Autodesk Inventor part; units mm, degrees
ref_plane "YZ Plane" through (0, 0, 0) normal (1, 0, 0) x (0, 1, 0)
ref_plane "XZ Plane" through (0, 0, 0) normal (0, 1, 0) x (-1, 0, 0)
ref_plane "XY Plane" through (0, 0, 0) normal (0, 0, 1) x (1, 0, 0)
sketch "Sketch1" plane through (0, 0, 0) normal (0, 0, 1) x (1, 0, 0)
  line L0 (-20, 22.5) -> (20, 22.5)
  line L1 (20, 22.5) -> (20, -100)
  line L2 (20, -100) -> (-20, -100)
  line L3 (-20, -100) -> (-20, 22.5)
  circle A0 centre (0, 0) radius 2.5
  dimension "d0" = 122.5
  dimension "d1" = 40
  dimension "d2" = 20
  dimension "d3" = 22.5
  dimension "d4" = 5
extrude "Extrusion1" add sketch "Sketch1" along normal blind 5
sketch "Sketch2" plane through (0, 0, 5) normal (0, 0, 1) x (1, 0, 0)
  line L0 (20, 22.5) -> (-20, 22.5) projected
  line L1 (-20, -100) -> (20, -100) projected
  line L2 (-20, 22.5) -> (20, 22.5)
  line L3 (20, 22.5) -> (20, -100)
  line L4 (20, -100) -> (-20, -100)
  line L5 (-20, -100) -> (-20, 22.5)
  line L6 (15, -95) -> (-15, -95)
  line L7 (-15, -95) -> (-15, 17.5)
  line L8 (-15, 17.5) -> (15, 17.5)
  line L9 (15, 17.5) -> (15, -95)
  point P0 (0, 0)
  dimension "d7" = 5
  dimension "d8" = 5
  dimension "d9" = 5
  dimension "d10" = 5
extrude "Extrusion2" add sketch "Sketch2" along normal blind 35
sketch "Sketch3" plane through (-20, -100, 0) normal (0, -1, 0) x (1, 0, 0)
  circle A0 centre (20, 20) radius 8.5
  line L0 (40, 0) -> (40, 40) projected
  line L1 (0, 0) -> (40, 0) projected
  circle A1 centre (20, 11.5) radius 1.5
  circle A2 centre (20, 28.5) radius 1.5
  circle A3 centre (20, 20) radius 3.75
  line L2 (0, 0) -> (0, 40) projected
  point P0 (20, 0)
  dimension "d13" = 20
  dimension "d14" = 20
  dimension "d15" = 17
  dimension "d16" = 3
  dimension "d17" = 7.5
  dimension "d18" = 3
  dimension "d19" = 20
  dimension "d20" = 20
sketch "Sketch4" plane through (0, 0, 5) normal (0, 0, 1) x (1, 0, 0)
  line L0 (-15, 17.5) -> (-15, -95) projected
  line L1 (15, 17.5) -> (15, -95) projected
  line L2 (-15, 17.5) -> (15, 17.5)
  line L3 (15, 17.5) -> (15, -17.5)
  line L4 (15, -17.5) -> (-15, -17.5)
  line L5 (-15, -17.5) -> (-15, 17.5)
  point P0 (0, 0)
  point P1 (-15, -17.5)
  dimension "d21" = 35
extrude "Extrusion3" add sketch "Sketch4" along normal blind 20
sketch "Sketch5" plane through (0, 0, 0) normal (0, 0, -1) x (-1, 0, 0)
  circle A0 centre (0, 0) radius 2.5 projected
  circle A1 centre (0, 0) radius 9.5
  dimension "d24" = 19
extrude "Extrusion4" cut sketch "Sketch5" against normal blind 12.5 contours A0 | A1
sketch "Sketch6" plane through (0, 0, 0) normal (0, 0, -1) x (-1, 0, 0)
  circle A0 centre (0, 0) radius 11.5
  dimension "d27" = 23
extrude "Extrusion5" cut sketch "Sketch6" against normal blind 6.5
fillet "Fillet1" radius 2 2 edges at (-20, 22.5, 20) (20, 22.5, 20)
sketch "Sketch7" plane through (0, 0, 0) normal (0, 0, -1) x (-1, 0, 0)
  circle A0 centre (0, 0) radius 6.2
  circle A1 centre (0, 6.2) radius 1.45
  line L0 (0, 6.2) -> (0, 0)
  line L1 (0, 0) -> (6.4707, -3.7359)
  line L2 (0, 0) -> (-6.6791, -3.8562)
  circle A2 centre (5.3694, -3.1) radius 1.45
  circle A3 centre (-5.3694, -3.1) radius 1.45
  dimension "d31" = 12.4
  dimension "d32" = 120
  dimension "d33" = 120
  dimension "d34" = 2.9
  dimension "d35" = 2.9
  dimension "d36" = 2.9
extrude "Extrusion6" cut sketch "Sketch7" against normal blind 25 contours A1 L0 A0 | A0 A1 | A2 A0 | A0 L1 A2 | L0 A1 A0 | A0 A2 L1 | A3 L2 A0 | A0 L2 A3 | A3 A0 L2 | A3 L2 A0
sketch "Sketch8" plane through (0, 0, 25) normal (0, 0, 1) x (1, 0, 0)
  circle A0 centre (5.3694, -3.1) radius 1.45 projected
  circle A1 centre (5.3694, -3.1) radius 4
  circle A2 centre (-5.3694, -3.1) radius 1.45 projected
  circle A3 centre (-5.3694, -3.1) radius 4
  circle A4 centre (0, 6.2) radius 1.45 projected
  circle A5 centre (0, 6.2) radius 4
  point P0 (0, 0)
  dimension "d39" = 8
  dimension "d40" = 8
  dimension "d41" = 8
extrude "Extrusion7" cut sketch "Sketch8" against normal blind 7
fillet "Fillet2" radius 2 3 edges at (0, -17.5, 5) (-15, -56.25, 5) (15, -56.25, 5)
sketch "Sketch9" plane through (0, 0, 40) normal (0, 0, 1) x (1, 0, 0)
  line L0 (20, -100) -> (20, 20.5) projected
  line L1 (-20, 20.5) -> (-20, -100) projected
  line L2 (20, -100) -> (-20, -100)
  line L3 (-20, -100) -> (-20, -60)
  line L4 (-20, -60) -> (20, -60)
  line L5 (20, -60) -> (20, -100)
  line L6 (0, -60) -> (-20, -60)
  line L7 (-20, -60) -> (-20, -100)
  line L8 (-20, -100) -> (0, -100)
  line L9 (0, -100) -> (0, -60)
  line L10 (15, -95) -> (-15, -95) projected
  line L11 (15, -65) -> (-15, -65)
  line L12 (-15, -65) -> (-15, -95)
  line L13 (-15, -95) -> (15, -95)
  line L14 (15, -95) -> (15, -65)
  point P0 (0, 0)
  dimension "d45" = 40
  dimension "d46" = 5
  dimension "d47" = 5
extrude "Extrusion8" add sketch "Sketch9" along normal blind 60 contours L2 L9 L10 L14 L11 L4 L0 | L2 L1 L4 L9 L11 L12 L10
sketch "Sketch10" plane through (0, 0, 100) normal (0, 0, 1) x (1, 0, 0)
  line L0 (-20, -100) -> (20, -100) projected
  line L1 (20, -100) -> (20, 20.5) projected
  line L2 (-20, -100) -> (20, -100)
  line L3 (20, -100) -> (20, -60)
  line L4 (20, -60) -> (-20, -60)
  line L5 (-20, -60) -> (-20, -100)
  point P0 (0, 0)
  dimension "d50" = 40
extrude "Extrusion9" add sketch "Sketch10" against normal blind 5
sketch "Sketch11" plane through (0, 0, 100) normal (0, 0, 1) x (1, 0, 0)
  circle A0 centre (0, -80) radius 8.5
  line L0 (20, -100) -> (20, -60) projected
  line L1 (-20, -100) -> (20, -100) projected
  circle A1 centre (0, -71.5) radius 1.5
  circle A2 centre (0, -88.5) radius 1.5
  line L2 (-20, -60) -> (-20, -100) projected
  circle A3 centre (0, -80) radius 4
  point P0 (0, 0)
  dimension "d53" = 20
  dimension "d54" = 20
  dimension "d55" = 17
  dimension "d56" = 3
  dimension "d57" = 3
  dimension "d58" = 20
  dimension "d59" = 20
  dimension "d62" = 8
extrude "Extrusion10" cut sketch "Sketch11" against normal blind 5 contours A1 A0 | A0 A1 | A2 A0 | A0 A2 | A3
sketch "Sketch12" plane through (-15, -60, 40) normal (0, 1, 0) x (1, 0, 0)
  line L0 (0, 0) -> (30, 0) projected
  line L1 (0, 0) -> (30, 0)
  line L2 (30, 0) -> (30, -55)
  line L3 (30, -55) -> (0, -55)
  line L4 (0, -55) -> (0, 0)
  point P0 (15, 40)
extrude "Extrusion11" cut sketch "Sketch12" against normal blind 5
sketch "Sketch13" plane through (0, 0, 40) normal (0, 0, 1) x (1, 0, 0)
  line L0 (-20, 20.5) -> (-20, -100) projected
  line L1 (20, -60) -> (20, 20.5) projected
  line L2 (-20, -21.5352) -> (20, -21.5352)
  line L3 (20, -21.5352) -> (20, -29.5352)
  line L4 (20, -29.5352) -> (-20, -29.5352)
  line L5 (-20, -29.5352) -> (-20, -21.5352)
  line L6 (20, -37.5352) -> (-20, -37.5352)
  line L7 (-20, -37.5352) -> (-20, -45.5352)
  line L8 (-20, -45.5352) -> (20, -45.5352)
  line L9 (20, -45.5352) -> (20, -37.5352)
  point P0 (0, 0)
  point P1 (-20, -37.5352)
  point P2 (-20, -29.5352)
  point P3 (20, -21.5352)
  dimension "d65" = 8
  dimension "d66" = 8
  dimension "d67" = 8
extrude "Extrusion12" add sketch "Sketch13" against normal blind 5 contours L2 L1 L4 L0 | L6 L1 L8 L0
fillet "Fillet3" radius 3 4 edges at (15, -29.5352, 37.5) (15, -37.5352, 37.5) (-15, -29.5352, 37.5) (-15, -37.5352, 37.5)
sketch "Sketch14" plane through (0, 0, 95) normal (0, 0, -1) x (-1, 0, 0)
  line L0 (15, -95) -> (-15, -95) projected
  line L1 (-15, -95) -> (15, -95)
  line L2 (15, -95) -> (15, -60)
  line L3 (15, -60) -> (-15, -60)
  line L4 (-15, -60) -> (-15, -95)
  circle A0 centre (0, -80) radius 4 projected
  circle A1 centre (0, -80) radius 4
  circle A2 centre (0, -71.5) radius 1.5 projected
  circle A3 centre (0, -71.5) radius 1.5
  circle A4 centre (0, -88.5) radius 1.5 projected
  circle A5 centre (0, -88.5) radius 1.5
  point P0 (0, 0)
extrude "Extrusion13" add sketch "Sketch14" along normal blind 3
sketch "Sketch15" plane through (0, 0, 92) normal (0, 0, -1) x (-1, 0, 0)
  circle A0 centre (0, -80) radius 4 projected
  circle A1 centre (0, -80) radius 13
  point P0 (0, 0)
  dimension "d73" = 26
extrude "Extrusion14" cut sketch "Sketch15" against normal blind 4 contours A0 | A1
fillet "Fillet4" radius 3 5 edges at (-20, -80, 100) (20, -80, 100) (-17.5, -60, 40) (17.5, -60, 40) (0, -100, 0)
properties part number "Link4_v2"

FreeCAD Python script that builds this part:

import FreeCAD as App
import Part
import Sketcher

V = App.Vector


def edges_at(feature, points):
    """Names of the edges that pass closest to the given points."""
    edges = feature.Shape.Edges
    near = lambda p: min(range(len(edges)), key=lambda i: edges[i].distToShape(Part.Vertex(*p))[0])
    return sorted({f"Edge{near(p) + 1}" for p in points})

doc = App.newDocument("Part")
params = doc.addObject("Spreadsheet::Sheet", "Params")
for row, (alias, value) in enumerate([
    ("sketch1_diameter", "5 mm"),
    ("sketch1_width", "40 mm"),
    ("sketch1_height", "122.5 mm"),
    ("pad1_length", "5 mm"),
    ("sketch2_width", "40 mm"),
    ("sketch2_height", "122.5 mm"),
    ("pad2_length", "35 mm"),
    ("sketch3_height", "35 mm"),
    ("sketch3_width", "30 mm"),
    ("pad3_length", "20 mm"),
    ("sketch4_diameter", "19 mm"),
    ("pocket1_length", "12.5 mm"),
    ("sketch5_diameter", "23 mm"),
    ("pocket2_length", "6.5 mm"),
    ("fillet_radius", "2 mm"),
    ("sketch6_diameter", "2.9 mm"),
    ("pocket3_length", "25 mm"),
    ("sketch7_diameter", "8 mm"),
    ("sketch7_diameter2", "2.9 mm"),
    ("pocket4_length", "7 mm"),
    ("fillet2_radius", "2 mm"),
    ("sketch8_width", "40 mm"),
    ("pad4_length", "60 mm"),
    ("sketch9_width", "40 mm"),
    ("pad5_length", "5 mm"),
    ("sketch10_diameter", "3 mm"),
    ("sketch10_diameter2", "8 mm"),
    ("pocket5_length", "5 mm"),
    ("sketch11_width", "30 mm"),
    ("sketch11_height", "55 mm"),
    ("pocket6_length", "5 mm"),
    ("sketch12_height", "8 mm"),
    ("sketch12_width", "40 mm"),
    ("pad6_length", "5 mm"),
    ("fillet3_radius", "3 mm"),
    ("sketch13_diameter", "3 mm"),
    ("sketch13_diameter2", "8 mm"),
    ("sketch13_width", "30 mm"),
    ("sketch13_height", "35 mm"),
    ("pad7_length", "3 mm"),
    ("sketch14_diameter", "26 mm"),
    ("pocket7_length", "4 mm"),
    ("fillet4_radius", "3 mm"),
], start=1):
    params.set(f"A{row}", alias)
    params.set(f"B{row}", "=" + value)
    params.setAlias(f"B{row}", alias)

body = doc.addObject("PartDesign::Body", "Body")

sketch1 = doc.addObject("Sketcher::SketchObject", "Sketch")
body.addObject(sketch1)
sketch1.AttachmentSupport = (doc.XY_Plane, [""])
sketch1.MapMode = "FlatFace"
sketch1.addGeometry([
    Part.LineSegment(V(20, 22.5, 0), V(-20, 22.5, 0)),
    Part.LineSegment(V(-20, 22.5, 0), V(-20, -100, 0)),
    Part.LineSegment(V(-20, -100, 0), V(20, -100, 0)),
    Part.LineSegment(V(20, -100, 0), V(20, 22.5, 0)),
    Part.Circle(V(0, 0, 0), V(0, 0, 1), 2.5),
], False)
sketch1.addConstraint([
    Sketcher.Constraint("Coincident", 0, 2, 1, 1),
    Sketcher.Constraint("Coincident", 1, 2, 2, 1),
    Sketcher.Constraint("Coincident", 2, 2, 3, 1),
    Sketcher.Constraint("Coincident", 3, 2, 0, 1),
    Sketcher.Constraint("Horizontal", 0),
    Sketcher.Constraint("Vertical", 1),
    Sketcher.Constraint("Horizontal", 2),
    Sketcher.Constraint("Vertical", 3),
    Sketcher.Constraint("Coincident", 4, 3, -1, 1),
    Sketcher.Constraint("Diameter", 4, 5.0),
    Sketcher.Constraint("DistanceX", 0, 2, 0, 1, 40.0),
    Sketcher.Constraint("DistanceY", 1, 2, 1, 1, 122.5),
    Sketcher.Constraint("DistanceX", 0, 2, -1, 1, 20.0),
    Sketcher.Constraint("DistanceY", -1, 1, 0, 2, 22.5),
])
sketch1.setExpression("Constraints[9]", "Params.sketch1_diameter")
sketch1.setExpression("Constraints[10]", "Params.sketch1_width")
sketch1.setExpression("Constraints[11]", "Params.sketch1_height")
pad1 = doc.addObject("PartDesign::Pad", "Pad")
body.addObject(pad1)
pad1.Profile = sketch1
pad1.setExpression("Length", "Params.pad1_length")

sketch2 = doc.addObject("Sketcher::SketchObject", "Sketch001")
body.addObject(sketch2)
sketch2.AttachmentSupport = (doc.XY_Plane, [""])
sketch2.MapMode = "FlatFace"
sketch2.AttachmentOffset = App.Placement(V(0, 0, 5), App.Rotation())
sketch2.addGeometry([
    Part.LineSegment(V(20, -100, 0), V(20, 22, 0)),
    Part.LineSegment(V(20, 22, 0), V(-20, 22, 0)),
    Part.LineSegment(V(-20, 22, 0), V(-20, -100, 0)),
    Part.LineSegment(V(-20, -100, 0), V(20, -100, 0)),
    Part.LineSegment(V(15, 18, 0), V(15, -95, 0)),
    Part.LineSegment(V(15, -95, 0), V(-15, -95, 0)),
    Part.LineSegment(V(-15, -95, 0), V(-15, 18, 0)),
    Part.LineSegment(V(-15, 18, 0), V(15, 18, 0)),
], False)
sketch2.addConstraint([
    Sketcher.Constraint("Coincident", 0, 2, 1, 1),
    Sketcher.Constraint("Coincident", 1, 2, 2, 1),
    Sketcher.Constraint("Coincident", 2, 2, 3, 1),
    Sketcher.Constraint("Coincident", 3, 2, 0, 1),
    Sketcher.Constraint("Coincident", 4, 2, 5, 1),
    Sketcher.Constraint("Coincident", 5, 2, 6, 1),
    Sketcher.Constraint("Coincident", 6, 2, 7, 1),
    Sketcher.Constraint("Coincident", 7, 2, 4, 1),
    Sketcher.Constraint("Vertical", 0),
    Sketcher.Constraint("Horizontal", 1),
    Sketcher.Constraint("Vertical", 2),
    Sketcher.Constraint("Horizontal", 3),
    Sketcher.Constraint("Vertical", 4),
    Sketcher.Constraint("Horizontal", 5),
    Sketcher.Constraint("Vertical", 6),
    Sketcher.Constraint("Horizontal", 7),
    Sketcher.Constraint("DistanceX", 4, 2, 3, 2, 5.0),
    Sketcher.Constraint("DistanceY", 3, 2, 4, 2, 5.0),
    Sketcher.Constraint("DistanceX", 2, 2, 5, 2, 5.0),
    Sketcher.Constraint("DistanceY", 6, 2, 1, 2, 5.0),
    Sketcher.Constraint("DistanceX", 1, 2, 1, 1, 40.0),
    Sketcher.Constraint("DistanceY", 0, 1, 0, 2, 122.5),
    Sketcher.Constraint("DistanceX", -1, 1, 0, 2, 20.0),
    Sketcher.Constraint("DistanceY", 2, 2, -1, 1, 100.0),
])
sketch2.setExpression("Constraints[20]", "Params.sketch2_width")
sketch2.setExpression("Constraints[21]", "Params.sketch2_height")
pad2 = doc.addObject("PartDesign::Pad", "Pad001")
body.addObject(pad2)
pad2.Profile = sketch2
pad2.setExpression("Length", "Params.pad2_length")

sketch3 = doc.addObject("Sketcher::SketchObject", "Sketch002")
body.addObject(sketch3)
sketch3.AttachmentSupport = (doc.XY_Plane, [""])
sketch3.MapMode = "FlatFace"
sketch3.AttachmentOffset = App.Placement(V(0, 0, 5), App.Rotation())
sketch3.addGeometry([
    Part.LineSegment(V(15, 18, 0), V(-15, 18, 0)),
    Part.LineSegment(V(-15, 18, 0), V(-15, -18, 0)),
    Part.LineSegment(V(-15, -18, 0), V(15, -18, 0)),
    Part.LineSegment(V(15, -18, 0), V(15, 18, 0)),
], False)
sketch3.addConstraint([
    Sketcher.Constraint("Coincident", 0, 2, 1, 1),
    Sketcher.Constraint("Coincident", 1, 2, 2, 1),
    Sketcher.Constraint("Coincident", 2, 2, 3, 1),
    Sketcher.Constraint("Coincident", 3, 2, 0, 1),
    Sketcher.Constraint("Horizontal", 0),
    Sketcher.Constraint("Vertical", 1),
    Sketcher.Constraint("Horizontal", 2),
    Sketcher.Constraint("Vertical", 3),
    Sketcher.Constraint("Symmetric", 0, 2, 2, 2, -1, 1),
    Sketcher.Constraint("DistanceY", 1, 2, 1, 1, 35.0),
    Sketcher.Constraint("DistanceX", 0, 2, 0, 1, 30.0),
])
sketch3.setExpression("Constraints[9]", "Params.sketch3_height")
sketch3.setExpression("Constraints[10]", "Params.sketch3_width")
pad3 = doc.addObject("PartDesign::Pad", "Pad002")
body.addObject(pad3)
pad3.Profile = sketch3
pad3.setExpression("Length", "Params.pad3_length")

sketch4 = doc.addObject("Sketcher::SketchObject", "Sketch003")
body.addObject(sketch4)
sketch4.AttachmentSupport = (doc.XY_Plane, [""])
sketch4.MapMode = "FlatFace"
sketch4.addGeometry(Part.Circle(V(0, 0, 0), V(0, 0, 1), 10), False)
sketch4.addConstraint([
    Sketcher.Constraint("Coincident", 0, 3, -1, 1),
    Sketcher.Constraint("Diameter", 0, 19.0),
])
sketch4.setExpression("Constraints[1]", "Params.sketch4_diameter")
pocket1 = doc.addObject("PartDesign::Pocket", "Pocket")
body.addObject(pocket1)
pocket1.Profile = sketch4
pocket1.setExpression("Length", "Params.pocket1_length")
pocket1.Reversed = True

sketch5 = doc.addObject("Sketcher::SketchObject", "Sketch004")
body.addObject(sketch5)
sketch5.AttachmentSupport = (doc.XY_Plane, [""])
sketch5.MapMode = "FlatFace"
sketch5.addGeometry(Part.Circle(V(0, 0, 0), V(0, 0, 1), 12), False)
sketch5.addConstraint([
    Sketcher.Constraint("Coincident", 0, 3, -1, 1),
    Sketcher.Constraint("Diameter", 0, 23.0),
])
sketch5.setExpression("Constraints[1]", "Params.sketch5_diameter")
pocket2 = doc.addObject("PartDesign::Pocket", "Pocket001")
body.addObject(pocket2)
pocket2.Profile = sketch5
pocket2.setExpression("Length", "Params.pocket2_length")
pocket2.Reversed = True
doc.recompute()

fillet = doc.addObject("PartDesign::Fillet", "Fillet")
body.addObject(fillet)
fillet.Base = (pocket2, edges_at(pocket2, [(-20, 22.5, 20), (20, 22.5, 20)]))
fillet.setExpression("Radius", "Params.fillet_radius")

sketch6 = doc.addObject("Sketcher::SketchObject", "Sketch005")
body.addObject(sketch6)
sketch6.AttachmentSupport = (doc.XY_Plane, [""])
sketch6.MapMode = "FlatFace"
sketch6.addGeometry([
    Part.Circle(V(0, 6.2, 0), V(0, 0, 1), 1.4),
    Part.Circle(V(-5.4, -3.1, 0), V(0, 0, 1), 1.4),
    Part.Circle(V(5.4, -3.1, 0), V(0, 0, 1), 1.4),
], False)
sketch6.addConstraint([
    Sketcher.Constraint("Equal", 0, 1),
    Sketcher.Constraint("Equal", 1, 2),
    Sketcher.Constraint("Symmetric", 1, 3, 2, 3, -2),
    Sketcher.Constraint("PointOnObject", 0, 3, -2),
    Sketcher.Constraint("Diameter", 0, 2.9),
    Sketcher.Constraint("DistanceY", -1, 1, 0, 3, 6.2),
    Sketcher.Constraint("DistanceY", 1, 3, -1, 1, 3.1),
    Sketcher.Constraint("DistanceX", 1, 3, -1, 1, 5.3694),
])
sketch6.setExpression("Constraints[4]", "Params.sketch6_diameter")
pocket3 = doc.addObject("PartDesign::Pocket", "Pocket002")
body.addObject(pocket3)
pocket3.Profile = sketch6
pocket3.setExpression("Length", "Params.pocket3_length")
pocket3.Reversed = True

sketch7 = doc.addObject("Sketcher::SketchObject", "Sketch006")
body.addObject(sketch7)
sketch7.AttachmentSupport = (doc.XY_Plane, [""])
sketch7.MapMode = "FlatFace"
sketch7.AttachmentOffset = App.Placement(V(0, 0, 25), App.Rotation())
sketch7.addGeometry([
    Part.Circle(V(5.4, -3.1, 0), V(0, 0, 1), 4),
    Part.Circle(V(5.4, -3.1, 0), V(0, 0, 1), 1.4),
    Part.Circle(V(-5.4, -3.1, 0), V(0, 0, 1), 4),
    Part.Circle(V(-5.4, -3.1, 0), V(0, 0, 1), 1.4),
    Part.Circle(V(0, 6.2, 0), V(0, 0, 1), 4),
    Part.Circle(V(0, 6.2, 0), V(0, 0, 1), 1.4),
], False)
sketch7.addConstraint([
    Sketcher.Constraint("Coincident", 1, 3, 0, 3),
    Sketcher.Constraint("Coincident", 3, 3, 2, 3),
    Sketcher.Constraint("Coincident", 5, 3, 4, 3),
    Sketcher.Constraint("Equal", 0, 2),
    Sketcher.Constraint("Equal", 1, 3),
    Sketcher.Constraint("Equal", 2, 4),
    Sketcher.Constraint("Equal", 3, 5),
    Sketcher.Constraint("Symmetric", 0, 3, 2, 3, -2),
    Sketcher.Constraint("PointOnObject", 4, 3, -2),
    Sketcher.Constraint("Diameter", 0, 8.0),
    Sketcher.Constraint("Diameter", 1, 2.9),
    Sketcher.Constraint("DistanceY", 0, 3, -1, 1, 3.1),
    Sketcher.Constraint("DistanceY", -1, 1, 4, 3, 6.2),
    Sketcher.Constraint("DistanceX", -1, 1, 0, 3, 5.3694),
])
sketch7.setExpression("Constraints[9]", "Params.sketch7_diameter")
sketch7.setExpression("Constraints[10]", "Params.sketch7_diameter2")
pocket4 = doc.addObject("PartDesign::Pocket", "Pocket003")
body.addObject(pocket4)
pocket4.Profile = sketch7
pocket4.setExpression("Length", "Params.pocket4_length")
doc.recompute()

fillet2 = doc.addObject("PartDesign::Fillet", "Fillet001")
body.addObject(fillet2)
fillet2.Base = (pocket4, edges_at(pocket4, [(0, -17.5, 5), (-15, -56.25, 5), (15, -56.25, 5)]))
fillet2.setExpression("Radius", "Params.fillet2_radius")

sketch8 = doc.addObject("Sketcher::SketchObject", "Sketch007")
body.addObject(sketch8)
sketch8.AttachmentSupport = (doc.XY_Plane, [""])
sketch8.MapMode = "FlatFace"
sketch8.AttachmentOffset = App.Placement(V(0, 0, 40), App.Rotation())
sketch8.addGeometry([
    Part.LineSegment(V(20, -100, 0), V(20, -60, 0)),
    Part.LineSegment(V(20, -60, 0), V(-20, -60, 0)),
    Part.LineSegment(V(-20, -60, 0), V(-20, -100, 0)),
    Part.LineSegment(V(-20, -100, 0), V(20, -100, 0)),
    Part.LineSegment(V(15, -95, 0), V(-15, -95, 0)),
    Part.LineSegment(V(-15, -95, 0), V(-15, -65, 0)),
    Part.LineSegment(V(-15, -65, 0), V(15, -65, 0)),
    Part.LineSegment(V(15, -65, 0), V(15, -95, 0)),
], False)
sketch8.addConstraint([
    Sketcher.Constraint("Coincident", 0, 2, 1, 1),
    Sketcher.Constraint("Coincident", 1, 2, 2, 1),
    Sketcher.Constraint("Coincident", 2, 2, 3, 1),
    Sketcher.Constraint("Coincident", 3, 2, 0, 1),
    Sketcher.Constraint("Coincident", 4, 2, 5, 1),
    Sketcher.Constraint("Coincident", 5, 2, 6, 1),
    Sketcher.Constraint("Coincident", 6, 2, 7, 1),
    Sketcher.Constraint("Coincident", 7, 2, 4, 1),
    Sketcher.Constraint("Vertical", 0),
    Sketcher.Constraint("Horizontal", 1),
    Sketcher.Constraint("Vertical", 2),
    Sketcher.Constraint("Horizontal", 3),
    Sketcher.Constraint("Horizontal", 4),
    Sketcher.Constraint("Vertical", 5),
    Sketcher.Constraint("Horizontal", 6),
    Sketcher.Constraint("Vertical", 7),
    Sketcher.Constraint("Equal", 3, 0),
    Sketcher.Constraint("Equal", 6, 5),
    Sketcher.Constraint("DistanceX", 1, 2, 1, 1, 40.0),
    Sketcher.Constraint("DistanceX", 2, 2, 4, 2, 5.0),
    Sketcher.Constraint("DistanceY", 2, 2, 4, 2, 5.0),
    Sketcher.Constraint("DistanceY", 5, 2, 1, 2, 5.0),
    Sketcher.Constraint("DistanceX", -1, 1, 0, 2, 20.0),
    Sketcher.Constraint("DistanceY", 0, 2, -1, 1, 60.0),
])
sketch8.setExpression("Constraints[18]", "Params.sketch8_width")
pad4 = doc.addObject("PartDesign::Pad", "Pad003")
body.addObject(pad4)
pad4.Profile = sketch8
pad4.setExpression("Length", "Params.pad4_length")

sketch9 = doc.addObject("Sketcher::SketchObject", "Sketch008")
body.addObject(sketch9)
sketch9.AttachmentSupport = (doc.XY_Plane, [""])
sketch9.MapMode = "FlatFace"
sketch9.AttachmentOffset = App.Placement(V(0, 0, 100), App.Rotation())
sketch9.addGeometry([
    Part.LineSegment(V(-20, -60, 0), V(-20, -100, 0)),
    Part.LineSegment(V(-20, -100, 0), V(20, -100, 0)),
    Part.LineSegment(V(20, -100, 0), V(20, -60, 0)),
    Part.LineSegment(V(20, -60, 0), V(-20, -60, 0)),
], False)
sketch9.addConstraint([
    Sketcher.Constraint("Coincident", 0, 2, 1, 1),
    Sketcher.Constraint("Coincident", 1, 2, 2, 1),
    Sketcher.Constraint("Coincident", 2, 2, 3, 1),
    Sketcher.Constraint("Coincident", 3, 2, 0, 1),
    Sketcher.Constraint("Vertical", 0),
    Sketcher.Constraint("Horizontal", 1),
    Sketcher.Constraint("Vertical", 2),
    Sketcher.Constraint("Horizontal", 3),
    Sketcher.Constraint("Equal", 3, 0),
    Sketcher.Constraint("DistanceX", 1, 1, 1, 2, 40.0),
    Sketcher.Constraint("DistanceX", 0, 2, -1, 1, 20.0),
    Sketcher.Constraint("DistanceY", 0, 2, -1, 1, 100.0),
])
sketch9.setExpression("Constraints[9]", "Params.sketch9_width")
pad5 = doc.addObject("PartDesign::Pad", "Pad004")
body.addObject(pad5)
pad5.Profile = sketch9
pad5.setExpression("Length", "Params.pad5_length")
pad5.Reversed = True

sketch10 = doc.addObject("Sketcher::SketchObject", "Sketch009")
body.addObject(sketch10)
sketch10.AttachmentSupport = (doc.XY_Plane, [""])
sketch10.MapMode = "FlatFace"
sketch10.AttachmentOffset = App.Placement(V(0, 0, 100), App.Rotation())
sketch10.addGeometry([
    Part.Circle(V(0, -71.5, 0), V(0, 0, 1), 1.5),
    Part.Circle(V(0, -88.5, 0), V(0, 0, 1), 1.5),
    Part.Circle(V(0, -80, 0), V(0, 0, 1), 4),
], False)
sketch10.addConstraint([
    Sketcher.Constraint("Equal", 0, 1),
    Sketcher.Constraint("PointOnObject", 0, 3, -2),
    Sketcher.Constraint("PointOnObject", 1, 3, -2),
    Sketcher.Constraint("PointOnObject", 2, 3, -2),
    Sketcher.Constraint("Diameter", 0, 3.0),
    Sketcher.Constraint("Diameter", 2, 8.0),
    Sketcher.Constraint("DistanceY", 1, 3, 0, 3, 17.0),
    Sketcher.Constraint("DistanceY", 2, 3, -1, 1, 80.0),
    Sketcher.Constraint("DistanceY", 0, 3, -1, 1, 71.5),
])
sketch10.setExpression("Constraints[4]", "Params.sketch10_diameter")
sketch10.setExpression("Constraints[5]", "Params.sketch10_diameter2")
pocket5 = doc.addObject("PartDesign::Pocket", "Pocket004")
body.addObject(pocket5)
pocket5.Profile = sketch10
pocket5.setExpression("Length", "Params.pocket5_length")

sketch11 = doc.addObject("Sketcher::SketchObject", "Sketch010")
body.addObject(sketch11)
sketch11.AttachmentSupport = (doc.XZ_Plane, [""])
sketch11.MapMode = "FlatFace"
sketch11.AttachmentOffset = App.Placement(V(0, 0, 60), App.Rotation())
sketch11.addGeometry([
    Part.LineSegment(V(15, 40, 0), V(-15, 40, 0)),
    Part.LineSegment(V(-15, 40, 0), V(-15, 95, 0)),
    Part.LineSegment(V(-15, 95, 0), V(15, 95, 0)),
    Part.LineSegment(V(15, 95, 0), V(15, 40, 0)),
], False)
sketch11.addConstraint([
    Sketcher.Constraint("Coincident", 0, 2, 1, 1),
    Sketcher.Constraint("Coincident", 1, 2, 2, 1),
    Sketcher.Constraint("Coincident", 2, 2, 3, 1),
    Sketcher.Constraint("Coincident", 3, 2, 0, 1),
    Sketcher.Constraint("Horizontal", 0),
    Sketcher.Constraint("Vertical", 1),
    Sketcher.Constraint("Horizontal", 2),
    Sketcher.Constraint("Vertical", 3),
    Sketcher.Constraint("DistanceX", 0, 2, 0, 1, 30.0),
    Sketcher.Constraint("DistanceY", 1, 1, 1, 2, 55.0),
    Sketcher.Constraint("DistanceX", 0, 2, -1, 1, 15.0),
    Sketcher.Constraint("DistanceY", -1, 1, 0, 2, 40.0),
])
sketch11.setExpression("Constraints[8]", "Params.sketch11_width")
sketch11.setExpression("Constraints[9]", "Params.sketch11_height")
pocket6 = doc.addObject("PartDesign::Pocket", "Pocket005")
body.addObject(pocket6)
pocket6.Profile = sketch11
pocket6.setExpression("Length", "Params.pocket6_length")
pocket6.Reversed = True

sketch12 = doc.addObject("Sketcher::SketchObject", "Sketch011")
body.addObject(sketch12)
sketch12.AttachmentSupport = (doc.XY_Plane, [""])
sketch12.MapMode = "FlatFace"
sketch12.AttachmentOffset = App.Placement(V(0, 0, 40), App.Rotation())
sketch12.addGeometry([
    Part.LineSegment(V(20, -22, 0), V(-20, -22, 0)),
    Part.LineSegment(V(-20, -22, 0), V(-20, -30, 0)),
    Part.LineSegment(V(-20, -30, 0), V(20, -30, 0)),
    Part.LineSegment(V(20, -30, 0), V(20, -22, 0)),
    Part.LineSegment(V(20, -38, 0), V(-20, -38, 0)),
    Part.LineSegment(V(-20, -38, 0), V(-20, -46, 0)),
    Part.LineSegment(V(-20, -46, 0), V(20, -46, 0)),
    Part.LineSegment(V(20, -46, 0), V(20, -38, 0)),
], False)
sketch12.addConstraint([
    Sketcher.Constraint("Coincident", 0, 2, 1, 1),
    Sketcher.Constraint("Coincident", 1, 2, 2, 1),
    Sketcher.Constraint("Coincident", 2, 2, 3, 1),
    Sketcher.Constraint("Coincident", 3, 2, 0, 1),
    Sketcher.Constraint("Coincident", 4, 2, 5, 1),
    Sketcher.Constraint("Coincident", 5, 2, 6, 1),
    Sketcher.Constraint("Coincident", 6, 2, 7, 1),
    Sketcher.Constraint("Coincident", 7, 2, 4, 1),
    Sketcher.Constraint("Horizontal", 0),
    Sketcher.Constraint("Vertical", 1),
    Sketcher.Constraint("Horizontal", 2),
    Sketcher.Constraint("Vertical", 3),
    Sketcher.Constraint("Horizontal", 4),
    Sketcher.Constraint("Vertical", 5),
    Sketcher.Constraint("Horizontal", 6),
    Sketcher.Constraint("Vertical", 7),
    Sketcher.Constraint("Vertical", 1, 2, 4, 2),
    Sketcher.Constraint("Vertical", 3, 2, 6, 2),
    Sketcher.Constraint("Equal", 3, 5),
    Sketcher.Constraint("DistanceY", 1, 2, 1, 1, 8.0),
    Sketcher.Constraint("DistanceY", 4, 2, 1, 2, 8.0),
    Sketcher.Constraint("DistanceX", 0, 2, 0, 1, 40.0),
    Sketcher.Constraint("DistanceX", 0, 2, -1, 1, 20.0),
    Sketcher.Constraint("DistanceY", 0, 2, -1, 1, 21.5352),
])
sketch12.setExpression("Constraints[19]", "Params.sketch12_height")
sketch12.setExpression("Constraints[21]", "Params.sketch12_width")
pad6 = doc.addObject("PartDesign::Pad", "Pad005")
body.addObject(pad6)
pad6.Profile = sketch12
pad6.setExpression("Length", "Params.pad6_length")
pad6.Reversed = True
doc.recompute()

fillet3 = doc.addObject("PartDesign::Fillet", "Fillet002")
body.addObject(fillet3)
fillet3.Base = (pad6, edges_at(pad6, [
    (15, -29.535, 37.5),
    (15, -37.535, 37.5),
    (-15, -29.535, 37.5),
    (-15, -37.535, 37.5),
]))
fillet3.setExpression("Radius", "Params.fillet3_radius")

sketch13 = doc.addObject("Sketcher::SketchObject", "Sketch012")
body.addObject(sketch13)
sketch13.AttachmentSupport = (doc.XY_Plane, [""])
sketch13.MapMode = "FlatFace"
sketch13.AttachmentOffset = App.Placement(V(0, 0, 95), App.Rotation())
sketch13.addGeometry([
    Part.LineSegment(V(15, -95, 0), V(-15, -95, 0)),
    Part.LineSegment(V(-15, -95, 0), V(-15, -60, 0)),
    Part.LineSegment(V(-15, -60, 0), V(15, -60, 0)),
    Part.LineSegment(V(15, -60, 0), V(15, -95, 0)),
    Part.Circle(V(0, -88.5, 0), V(0, 0, 1), 1.5),
    Part.Circle(V(0, -80, 0), V(0, 0, 1), 4),
    Part.Circle(V(0, -71.5, 0), V(0, 0, 1), 1.5),
], False)
sketch13.addConstraint([
    Sketcher.Constraint("Coincident", 0, 2, 1, 1),
    Sketcher.Constraint("Coincident", 1, 2, 2, 1),
    Sketcher.Constraint("Coincident", 2, 2, 3, 1),
    Sketcher.Constraint("Coincident", 3, 2, 0, 1),
    Sketcher.Constraint("Horizontal", 0),
    Sketcher.Constraint("Vertical", 1),
    Sketcher.Constraint("Horizontal", 2),
    Sketcher.Constraint("Vertical", 3),
    Sketcher.Constraint("Equal", 4, 6),
    Sketcher.Constraint("PointOnObject", 4, 3, -2),
    Sketcher.Constraint("PointOnObject", 5, 3, -2),
    Sketcher.Constraint("PointOnObject", 6, 3, -2),
    Sketcher.Constraint("Diameter", 4, 3.0),
    Sketcher.Constraint("Diameter", 5, 8.0),
    Sketcher.Constraint("DistanceX", 0, 2, 0, 1, 30.0),
    Sketcher.Constraint("DistanceY", 1, 1, 1, 2, 35.0),
    Sketcher.Constraint("DistanceY", 5, 3, -1, 1, 80.0),
    Sketcher.Constraint("DistanceX", 0, 2, -1, 1, 15.0),
    Sketcher.Constraint("DistanceY", 0, 2, -1, 1, 95.0),
    Sketcher.Constraint("DistanceY", 4, 3, 6, 3, 17.0),
    Sketcher.Constraint("DistanceY", 4, 3, -1, 1, 88.5),
])
sketch13.setExpression("Constraints[12]", "Params.sketch13_diameter")
sketch13.setExpression("Constraints[13]", "Params.sketch13_diameter2")
sketch13.setExpression("Constraints[14]", "Params.sketch13_width")
sketch13.setExpression("Constraints[15]", "Params.sketch13_height")
pad7 = doc.addObject("PartDesign::Pad", "Pad006")
body.addObject(pad7)
pad7.Profile = sketch13
pad7.setExpression("Length", "Params.pad7_length")
pad7.Reversed = True

sketch14 = doc.addObject("Sketcher::SketchObject", "Sketch013")
body.addObject(sketch14)
sketch14.AttachmentSupport = (doc.XY_Plane, [""])
sketch14.MapMode = "FlatFace"
sketch14.AttachmentOffset = App.Placement(V(0, 0, 92), App.Rotation())
sketch14.addGeometry(Part.Circle(V(0, -80, 0), V(0, 0, 1), 13), False)
sketch14.addConstraint([
    Sketcher.Constraint("PointOnObject", 0, 3, -2),
    Sketcher.Constraint("Diameter", 0, 26.0),
    Sketcher.Constraint("DistanceY", 0, 3, -1, 1, 80.0),
])
sketch14.setExpression("Constraints[1]", "Params.sketch14_diameter")
pocket7 = doc.addObject("PartDesign::Pocket", "Pocket006")
body.addObject(pocket7)
pocket7.Profile = sketch14
pocket7.setExpression("Length", "Params.pocket7_length")
pocket7.Reversed = True
doc.recompute()

fillet4 = doc.addObject("PartDesign::Fillet", "Fillet003")
body.addObject(fillet4)
fillet4.Base = (pocket7, edges_at(pocket7, [
    (-20, -80, 100),
    (20, -80, 100),
    (-17.5, -60, 40),
    (17.5, -60, 40),
    (0, -100, 0),
]))
fillet4.setExpression("Radius", "Params.fillet4_radius")

doc.recompute()
